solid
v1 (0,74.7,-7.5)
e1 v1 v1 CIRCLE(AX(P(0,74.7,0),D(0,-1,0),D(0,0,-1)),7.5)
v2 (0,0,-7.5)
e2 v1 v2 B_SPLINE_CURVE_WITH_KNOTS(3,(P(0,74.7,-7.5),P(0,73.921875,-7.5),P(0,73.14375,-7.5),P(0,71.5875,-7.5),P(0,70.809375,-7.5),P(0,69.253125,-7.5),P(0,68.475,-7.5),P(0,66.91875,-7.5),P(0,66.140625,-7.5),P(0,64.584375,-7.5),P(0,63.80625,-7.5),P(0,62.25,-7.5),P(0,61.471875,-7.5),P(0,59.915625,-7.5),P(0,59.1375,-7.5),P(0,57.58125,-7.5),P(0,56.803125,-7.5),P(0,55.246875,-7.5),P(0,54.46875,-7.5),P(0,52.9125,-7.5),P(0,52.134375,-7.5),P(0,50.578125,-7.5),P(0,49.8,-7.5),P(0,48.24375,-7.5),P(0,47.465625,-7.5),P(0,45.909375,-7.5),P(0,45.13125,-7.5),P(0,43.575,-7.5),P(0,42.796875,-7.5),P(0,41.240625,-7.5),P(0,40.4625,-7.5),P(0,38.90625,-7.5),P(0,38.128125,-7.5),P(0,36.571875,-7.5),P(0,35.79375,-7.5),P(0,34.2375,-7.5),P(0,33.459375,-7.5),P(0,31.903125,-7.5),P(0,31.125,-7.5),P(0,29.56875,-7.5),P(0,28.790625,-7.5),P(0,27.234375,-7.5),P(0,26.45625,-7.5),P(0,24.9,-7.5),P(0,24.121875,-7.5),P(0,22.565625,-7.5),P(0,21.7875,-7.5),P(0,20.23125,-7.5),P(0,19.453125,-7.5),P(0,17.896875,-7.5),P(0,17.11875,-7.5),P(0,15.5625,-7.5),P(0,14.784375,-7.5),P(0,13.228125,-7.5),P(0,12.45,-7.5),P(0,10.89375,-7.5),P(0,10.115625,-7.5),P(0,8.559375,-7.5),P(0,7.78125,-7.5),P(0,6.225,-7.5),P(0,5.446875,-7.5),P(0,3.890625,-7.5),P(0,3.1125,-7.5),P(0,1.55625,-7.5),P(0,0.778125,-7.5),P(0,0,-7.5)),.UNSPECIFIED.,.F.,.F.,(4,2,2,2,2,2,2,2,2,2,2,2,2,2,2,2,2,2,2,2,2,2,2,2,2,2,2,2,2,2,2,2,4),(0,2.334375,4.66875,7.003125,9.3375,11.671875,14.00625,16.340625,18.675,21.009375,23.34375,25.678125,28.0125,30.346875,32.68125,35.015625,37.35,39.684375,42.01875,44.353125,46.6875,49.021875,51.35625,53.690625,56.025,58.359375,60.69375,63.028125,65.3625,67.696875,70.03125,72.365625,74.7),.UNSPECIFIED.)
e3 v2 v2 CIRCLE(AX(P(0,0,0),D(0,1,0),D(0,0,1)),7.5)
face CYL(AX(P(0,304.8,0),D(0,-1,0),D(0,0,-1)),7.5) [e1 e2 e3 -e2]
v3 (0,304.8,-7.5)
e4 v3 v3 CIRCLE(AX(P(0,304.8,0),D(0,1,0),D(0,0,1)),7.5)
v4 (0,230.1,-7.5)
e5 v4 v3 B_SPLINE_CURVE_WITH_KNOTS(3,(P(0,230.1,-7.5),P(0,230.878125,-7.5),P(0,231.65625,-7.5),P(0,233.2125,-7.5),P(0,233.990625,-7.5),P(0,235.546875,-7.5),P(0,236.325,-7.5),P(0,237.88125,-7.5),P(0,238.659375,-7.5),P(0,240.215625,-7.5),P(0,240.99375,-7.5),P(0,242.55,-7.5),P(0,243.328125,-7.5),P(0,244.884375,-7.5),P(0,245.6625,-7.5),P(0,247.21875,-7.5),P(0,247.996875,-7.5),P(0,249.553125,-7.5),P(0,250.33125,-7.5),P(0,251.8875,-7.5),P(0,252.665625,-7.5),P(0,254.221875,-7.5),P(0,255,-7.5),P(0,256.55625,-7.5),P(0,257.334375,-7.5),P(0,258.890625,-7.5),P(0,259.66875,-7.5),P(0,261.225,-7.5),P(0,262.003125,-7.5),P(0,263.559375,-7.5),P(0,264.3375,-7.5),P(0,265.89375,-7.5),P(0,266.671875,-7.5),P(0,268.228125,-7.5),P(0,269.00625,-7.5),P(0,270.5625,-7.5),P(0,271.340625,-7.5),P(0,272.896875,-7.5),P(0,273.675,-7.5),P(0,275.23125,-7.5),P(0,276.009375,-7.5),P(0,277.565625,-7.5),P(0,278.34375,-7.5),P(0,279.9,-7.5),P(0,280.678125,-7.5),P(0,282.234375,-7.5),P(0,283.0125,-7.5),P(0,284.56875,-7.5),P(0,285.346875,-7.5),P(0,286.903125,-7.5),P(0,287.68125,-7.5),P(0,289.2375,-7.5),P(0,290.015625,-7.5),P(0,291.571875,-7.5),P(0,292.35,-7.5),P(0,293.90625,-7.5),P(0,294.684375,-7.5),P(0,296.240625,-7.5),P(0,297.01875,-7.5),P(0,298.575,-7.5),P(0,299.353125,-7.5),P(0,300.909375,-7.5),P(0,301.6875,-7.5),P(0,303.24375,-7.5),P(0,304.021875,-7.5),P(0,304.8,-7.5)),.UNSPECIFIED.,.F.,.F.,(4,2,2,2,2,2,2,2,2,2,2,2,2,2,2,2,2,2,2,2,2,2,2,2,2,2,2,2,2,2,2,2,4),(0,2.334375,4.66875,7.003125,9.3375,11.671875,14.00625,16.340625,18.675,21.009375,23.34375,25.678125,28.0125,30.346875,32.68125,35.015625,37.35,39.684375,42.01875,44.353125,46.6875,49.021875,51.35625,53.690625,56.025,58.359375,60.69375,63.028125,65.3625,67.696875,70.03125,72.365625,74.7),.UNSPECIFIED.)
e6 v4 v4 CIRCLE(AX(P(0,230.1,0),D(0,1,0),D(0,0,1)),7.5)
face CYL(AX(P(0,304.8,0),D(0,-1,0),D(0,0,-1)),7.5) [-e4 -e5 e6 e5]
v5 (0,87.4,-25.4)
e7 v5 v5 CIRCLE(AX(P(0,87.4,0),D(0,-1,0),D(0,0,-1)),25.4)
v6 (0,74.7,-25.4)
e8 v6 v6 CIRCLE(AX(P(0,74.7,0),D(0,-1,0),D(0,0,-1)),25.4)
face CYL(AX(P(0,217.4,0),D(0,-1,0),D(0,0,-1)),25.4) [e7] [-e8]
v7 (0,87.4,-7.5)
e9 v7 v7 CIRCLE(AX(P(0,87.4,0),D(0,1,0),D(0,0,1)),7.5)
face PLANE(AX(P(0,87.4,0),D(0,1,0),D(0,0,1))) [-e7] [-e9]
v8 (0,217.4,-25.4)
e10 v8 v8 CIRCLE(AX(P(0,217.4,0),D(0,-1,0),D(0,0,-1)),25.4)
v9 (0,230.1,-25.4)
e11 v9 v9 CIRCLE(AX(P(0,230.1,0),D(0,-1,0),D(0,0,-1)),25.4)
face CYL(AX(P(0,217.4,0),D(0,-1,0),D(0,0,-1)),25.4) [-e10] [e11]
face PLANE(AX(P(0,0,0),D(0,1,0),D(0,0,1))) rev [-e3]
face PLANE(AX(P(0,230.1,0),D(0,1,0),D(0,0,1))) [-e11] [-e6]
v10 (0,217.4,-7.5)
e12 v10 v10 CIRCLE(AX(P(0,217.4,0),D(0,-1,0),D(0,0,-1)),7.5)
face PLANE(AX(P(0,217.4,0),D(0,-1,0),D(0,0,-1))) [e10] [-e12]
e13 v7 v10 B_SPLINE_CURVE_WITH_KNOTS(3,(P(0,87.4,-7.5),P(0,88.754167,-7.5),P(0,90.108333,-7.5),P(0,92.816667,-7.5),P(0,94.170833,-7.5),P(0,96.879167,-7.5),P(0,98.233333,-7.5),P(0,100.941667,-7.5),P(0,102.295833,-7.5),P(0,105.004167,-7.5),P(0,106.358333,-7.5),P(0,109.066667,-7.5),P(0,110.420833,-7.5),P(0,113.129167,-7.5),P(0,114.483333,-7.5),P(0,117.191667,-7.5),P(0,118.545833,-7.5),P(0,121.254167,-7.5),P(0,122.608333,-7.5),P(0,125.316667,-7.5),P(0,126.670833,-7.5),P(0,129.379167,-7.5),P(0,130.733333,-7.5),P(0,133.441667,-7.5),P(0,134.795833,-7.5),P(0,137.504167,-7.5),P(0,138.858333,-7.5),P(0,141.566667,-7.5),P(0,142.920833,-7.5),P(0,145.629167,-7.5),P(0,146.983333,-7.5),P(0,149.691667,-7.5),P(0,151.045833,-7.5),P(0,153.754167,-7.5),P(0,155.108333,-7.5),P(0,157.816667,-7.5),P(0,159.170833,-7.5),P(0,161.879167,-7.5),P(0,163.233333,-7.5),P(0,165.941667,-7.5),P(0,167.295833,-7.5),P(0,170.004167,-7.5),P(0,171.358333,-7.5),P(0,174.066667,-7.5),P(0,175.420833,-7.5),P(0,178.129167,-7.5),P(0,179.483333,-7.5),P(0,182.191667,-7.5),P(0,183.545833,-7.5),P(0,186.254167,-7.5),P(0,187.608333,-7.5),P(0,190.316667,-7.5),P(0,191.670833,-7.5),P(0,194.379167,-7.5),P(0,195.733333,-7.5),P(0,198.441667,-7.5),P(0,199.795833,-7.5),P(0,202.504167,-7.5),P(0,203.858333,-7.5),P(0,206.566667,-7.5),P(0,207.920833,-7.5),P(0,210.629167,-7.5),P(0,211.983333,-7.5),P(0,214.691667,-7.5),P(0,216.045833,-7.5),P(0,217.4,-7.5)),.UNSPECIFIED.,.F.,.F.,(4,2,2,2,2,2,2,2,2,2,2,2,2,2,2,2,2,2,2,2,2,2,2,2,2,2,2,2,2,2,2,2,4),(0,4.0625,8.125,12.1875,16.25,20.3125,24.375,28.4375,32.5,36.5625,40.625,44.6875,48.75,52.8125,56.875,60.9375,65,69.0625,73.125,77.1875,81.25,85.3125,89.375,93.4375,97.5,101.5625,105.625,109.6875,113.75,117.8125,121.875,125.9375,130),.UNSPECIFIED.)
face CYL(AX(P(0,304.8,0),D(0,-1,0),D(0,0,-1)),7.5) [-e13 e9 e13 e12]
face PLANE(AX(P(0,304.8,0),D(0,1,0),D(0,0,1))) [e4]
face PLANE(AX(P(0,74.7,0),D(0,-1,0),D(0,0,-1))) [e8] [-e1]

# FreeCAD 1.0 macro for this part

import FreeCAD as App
import Part
import Sketcher
from FreeCAD import Vector
Q = App.Units.Quantity


def add_polygon(sketch, points):
    """Adds a closed chain of lines whose ends are joined by coincident constraints."""
    first, n = sketch.GeometryCount, len(points)
    for a, b in zip(points, points[1:] + points[:1]):
        sketch.addGeometry(Part.LineSegment(App.Vector(*a, 0), App.Vector(*b, 0)), False)
    for i in range(n):
        sketch.addConstraint(Sketcher.Constraint("Coincident", first + i, 2, first + (i + 1) % n, 1))

doc = App.newDocument("Part")
body = doc.addObject("PartDesign::Body", "Body")

# Sketch on XZ plane
sketch1 = body.newObject("Sketcher::SketchObject", "Sketch")
sketch1.AttachmentSupport = (doc.getObject("XZ_Plane"), [""])
sketch1.MapMode = "FlatFace"
sketch1.addGeometry(Part.Circle(Vector(0, 0, 0), Vector(0, 0, 1), 7.5), False)
sketch1.addConstraint([
    Sketcher.Constraint("Coincident", 0, 3, -1, 1),
    Sketcher.Constraint("Diameter", 0, Q("15 mm")),
])
pad1 = body.newObject("PartDesign::Pad", "Pad")
pad1.Profile = sketch1
pad1.Length = Q("12 in")
pad1.Reversed = True

# Sketch on XY plane
sketch2 = body.newObject("Sketcher::SketchObject", "Sketch001")
sketch2.AttachmentSupport = (doc.getObject("XY_Plane"), [""])
sketch2.MapMode = "FlatFace"
add_polygon(sketch2, [(0, 230.1), (0, 217.4), (25.4, 217.4), (25.4, 230.1)])  # lines 0-3
add_polygon(sketch2, [(0, 87.4), (0, 74.7), (25.4, 74.7), (25.4, 87.4)])  # lines 4-7
sketch2.addConstraint([
    Sketcher.Constraint("Vertical", 0),
    Sketcher.Constraint("Horizontal", 1),
    Sketcher.Constraint("Vertical", 2),
    Sketcher.Constraint("Horizontal", 3),
    Sketcher.Constraint("Vertical", 4),
    Sketcher.Constraint("Horizontal", 5),
    Sketcher.Constraint("Vertical", 6),
    Sketcher.Constraint("Horizontal", 7),
    Sketcher.Constraint("PointOnObject", 0, 2, -2),
    Sketcher.Constraint("PointOnObject", 4, 2, -2),
    Sketcher.Constraint("Vertical", 2, 2, 5, 2),
    Sketcher.Constraint("Equal", 2, 4),
    Sketcher.Constraint("DistanceX", 1, 1, 1, 2, Q("1 in")),
    Sketcher.Constraint("DistanceY", 0, 2, 0, 1, Q("0.5 in")),
    Sketcher.Constraint("DistanceY", -1, 1, 0, 2, Q("217.4 mm")),
    Sketcher.Constraint("DistanceY", -1, 1, 4, 2, Q("74.7 mm")),
])
revolution = body.newObject("PartDesign::Revolution", "Revolution")
revolution.Profile = sketch2
revolution.ReferenceAxis = (sketch2, ["V_Axis"])
revolution.Angle = 360

doc.recompute()
